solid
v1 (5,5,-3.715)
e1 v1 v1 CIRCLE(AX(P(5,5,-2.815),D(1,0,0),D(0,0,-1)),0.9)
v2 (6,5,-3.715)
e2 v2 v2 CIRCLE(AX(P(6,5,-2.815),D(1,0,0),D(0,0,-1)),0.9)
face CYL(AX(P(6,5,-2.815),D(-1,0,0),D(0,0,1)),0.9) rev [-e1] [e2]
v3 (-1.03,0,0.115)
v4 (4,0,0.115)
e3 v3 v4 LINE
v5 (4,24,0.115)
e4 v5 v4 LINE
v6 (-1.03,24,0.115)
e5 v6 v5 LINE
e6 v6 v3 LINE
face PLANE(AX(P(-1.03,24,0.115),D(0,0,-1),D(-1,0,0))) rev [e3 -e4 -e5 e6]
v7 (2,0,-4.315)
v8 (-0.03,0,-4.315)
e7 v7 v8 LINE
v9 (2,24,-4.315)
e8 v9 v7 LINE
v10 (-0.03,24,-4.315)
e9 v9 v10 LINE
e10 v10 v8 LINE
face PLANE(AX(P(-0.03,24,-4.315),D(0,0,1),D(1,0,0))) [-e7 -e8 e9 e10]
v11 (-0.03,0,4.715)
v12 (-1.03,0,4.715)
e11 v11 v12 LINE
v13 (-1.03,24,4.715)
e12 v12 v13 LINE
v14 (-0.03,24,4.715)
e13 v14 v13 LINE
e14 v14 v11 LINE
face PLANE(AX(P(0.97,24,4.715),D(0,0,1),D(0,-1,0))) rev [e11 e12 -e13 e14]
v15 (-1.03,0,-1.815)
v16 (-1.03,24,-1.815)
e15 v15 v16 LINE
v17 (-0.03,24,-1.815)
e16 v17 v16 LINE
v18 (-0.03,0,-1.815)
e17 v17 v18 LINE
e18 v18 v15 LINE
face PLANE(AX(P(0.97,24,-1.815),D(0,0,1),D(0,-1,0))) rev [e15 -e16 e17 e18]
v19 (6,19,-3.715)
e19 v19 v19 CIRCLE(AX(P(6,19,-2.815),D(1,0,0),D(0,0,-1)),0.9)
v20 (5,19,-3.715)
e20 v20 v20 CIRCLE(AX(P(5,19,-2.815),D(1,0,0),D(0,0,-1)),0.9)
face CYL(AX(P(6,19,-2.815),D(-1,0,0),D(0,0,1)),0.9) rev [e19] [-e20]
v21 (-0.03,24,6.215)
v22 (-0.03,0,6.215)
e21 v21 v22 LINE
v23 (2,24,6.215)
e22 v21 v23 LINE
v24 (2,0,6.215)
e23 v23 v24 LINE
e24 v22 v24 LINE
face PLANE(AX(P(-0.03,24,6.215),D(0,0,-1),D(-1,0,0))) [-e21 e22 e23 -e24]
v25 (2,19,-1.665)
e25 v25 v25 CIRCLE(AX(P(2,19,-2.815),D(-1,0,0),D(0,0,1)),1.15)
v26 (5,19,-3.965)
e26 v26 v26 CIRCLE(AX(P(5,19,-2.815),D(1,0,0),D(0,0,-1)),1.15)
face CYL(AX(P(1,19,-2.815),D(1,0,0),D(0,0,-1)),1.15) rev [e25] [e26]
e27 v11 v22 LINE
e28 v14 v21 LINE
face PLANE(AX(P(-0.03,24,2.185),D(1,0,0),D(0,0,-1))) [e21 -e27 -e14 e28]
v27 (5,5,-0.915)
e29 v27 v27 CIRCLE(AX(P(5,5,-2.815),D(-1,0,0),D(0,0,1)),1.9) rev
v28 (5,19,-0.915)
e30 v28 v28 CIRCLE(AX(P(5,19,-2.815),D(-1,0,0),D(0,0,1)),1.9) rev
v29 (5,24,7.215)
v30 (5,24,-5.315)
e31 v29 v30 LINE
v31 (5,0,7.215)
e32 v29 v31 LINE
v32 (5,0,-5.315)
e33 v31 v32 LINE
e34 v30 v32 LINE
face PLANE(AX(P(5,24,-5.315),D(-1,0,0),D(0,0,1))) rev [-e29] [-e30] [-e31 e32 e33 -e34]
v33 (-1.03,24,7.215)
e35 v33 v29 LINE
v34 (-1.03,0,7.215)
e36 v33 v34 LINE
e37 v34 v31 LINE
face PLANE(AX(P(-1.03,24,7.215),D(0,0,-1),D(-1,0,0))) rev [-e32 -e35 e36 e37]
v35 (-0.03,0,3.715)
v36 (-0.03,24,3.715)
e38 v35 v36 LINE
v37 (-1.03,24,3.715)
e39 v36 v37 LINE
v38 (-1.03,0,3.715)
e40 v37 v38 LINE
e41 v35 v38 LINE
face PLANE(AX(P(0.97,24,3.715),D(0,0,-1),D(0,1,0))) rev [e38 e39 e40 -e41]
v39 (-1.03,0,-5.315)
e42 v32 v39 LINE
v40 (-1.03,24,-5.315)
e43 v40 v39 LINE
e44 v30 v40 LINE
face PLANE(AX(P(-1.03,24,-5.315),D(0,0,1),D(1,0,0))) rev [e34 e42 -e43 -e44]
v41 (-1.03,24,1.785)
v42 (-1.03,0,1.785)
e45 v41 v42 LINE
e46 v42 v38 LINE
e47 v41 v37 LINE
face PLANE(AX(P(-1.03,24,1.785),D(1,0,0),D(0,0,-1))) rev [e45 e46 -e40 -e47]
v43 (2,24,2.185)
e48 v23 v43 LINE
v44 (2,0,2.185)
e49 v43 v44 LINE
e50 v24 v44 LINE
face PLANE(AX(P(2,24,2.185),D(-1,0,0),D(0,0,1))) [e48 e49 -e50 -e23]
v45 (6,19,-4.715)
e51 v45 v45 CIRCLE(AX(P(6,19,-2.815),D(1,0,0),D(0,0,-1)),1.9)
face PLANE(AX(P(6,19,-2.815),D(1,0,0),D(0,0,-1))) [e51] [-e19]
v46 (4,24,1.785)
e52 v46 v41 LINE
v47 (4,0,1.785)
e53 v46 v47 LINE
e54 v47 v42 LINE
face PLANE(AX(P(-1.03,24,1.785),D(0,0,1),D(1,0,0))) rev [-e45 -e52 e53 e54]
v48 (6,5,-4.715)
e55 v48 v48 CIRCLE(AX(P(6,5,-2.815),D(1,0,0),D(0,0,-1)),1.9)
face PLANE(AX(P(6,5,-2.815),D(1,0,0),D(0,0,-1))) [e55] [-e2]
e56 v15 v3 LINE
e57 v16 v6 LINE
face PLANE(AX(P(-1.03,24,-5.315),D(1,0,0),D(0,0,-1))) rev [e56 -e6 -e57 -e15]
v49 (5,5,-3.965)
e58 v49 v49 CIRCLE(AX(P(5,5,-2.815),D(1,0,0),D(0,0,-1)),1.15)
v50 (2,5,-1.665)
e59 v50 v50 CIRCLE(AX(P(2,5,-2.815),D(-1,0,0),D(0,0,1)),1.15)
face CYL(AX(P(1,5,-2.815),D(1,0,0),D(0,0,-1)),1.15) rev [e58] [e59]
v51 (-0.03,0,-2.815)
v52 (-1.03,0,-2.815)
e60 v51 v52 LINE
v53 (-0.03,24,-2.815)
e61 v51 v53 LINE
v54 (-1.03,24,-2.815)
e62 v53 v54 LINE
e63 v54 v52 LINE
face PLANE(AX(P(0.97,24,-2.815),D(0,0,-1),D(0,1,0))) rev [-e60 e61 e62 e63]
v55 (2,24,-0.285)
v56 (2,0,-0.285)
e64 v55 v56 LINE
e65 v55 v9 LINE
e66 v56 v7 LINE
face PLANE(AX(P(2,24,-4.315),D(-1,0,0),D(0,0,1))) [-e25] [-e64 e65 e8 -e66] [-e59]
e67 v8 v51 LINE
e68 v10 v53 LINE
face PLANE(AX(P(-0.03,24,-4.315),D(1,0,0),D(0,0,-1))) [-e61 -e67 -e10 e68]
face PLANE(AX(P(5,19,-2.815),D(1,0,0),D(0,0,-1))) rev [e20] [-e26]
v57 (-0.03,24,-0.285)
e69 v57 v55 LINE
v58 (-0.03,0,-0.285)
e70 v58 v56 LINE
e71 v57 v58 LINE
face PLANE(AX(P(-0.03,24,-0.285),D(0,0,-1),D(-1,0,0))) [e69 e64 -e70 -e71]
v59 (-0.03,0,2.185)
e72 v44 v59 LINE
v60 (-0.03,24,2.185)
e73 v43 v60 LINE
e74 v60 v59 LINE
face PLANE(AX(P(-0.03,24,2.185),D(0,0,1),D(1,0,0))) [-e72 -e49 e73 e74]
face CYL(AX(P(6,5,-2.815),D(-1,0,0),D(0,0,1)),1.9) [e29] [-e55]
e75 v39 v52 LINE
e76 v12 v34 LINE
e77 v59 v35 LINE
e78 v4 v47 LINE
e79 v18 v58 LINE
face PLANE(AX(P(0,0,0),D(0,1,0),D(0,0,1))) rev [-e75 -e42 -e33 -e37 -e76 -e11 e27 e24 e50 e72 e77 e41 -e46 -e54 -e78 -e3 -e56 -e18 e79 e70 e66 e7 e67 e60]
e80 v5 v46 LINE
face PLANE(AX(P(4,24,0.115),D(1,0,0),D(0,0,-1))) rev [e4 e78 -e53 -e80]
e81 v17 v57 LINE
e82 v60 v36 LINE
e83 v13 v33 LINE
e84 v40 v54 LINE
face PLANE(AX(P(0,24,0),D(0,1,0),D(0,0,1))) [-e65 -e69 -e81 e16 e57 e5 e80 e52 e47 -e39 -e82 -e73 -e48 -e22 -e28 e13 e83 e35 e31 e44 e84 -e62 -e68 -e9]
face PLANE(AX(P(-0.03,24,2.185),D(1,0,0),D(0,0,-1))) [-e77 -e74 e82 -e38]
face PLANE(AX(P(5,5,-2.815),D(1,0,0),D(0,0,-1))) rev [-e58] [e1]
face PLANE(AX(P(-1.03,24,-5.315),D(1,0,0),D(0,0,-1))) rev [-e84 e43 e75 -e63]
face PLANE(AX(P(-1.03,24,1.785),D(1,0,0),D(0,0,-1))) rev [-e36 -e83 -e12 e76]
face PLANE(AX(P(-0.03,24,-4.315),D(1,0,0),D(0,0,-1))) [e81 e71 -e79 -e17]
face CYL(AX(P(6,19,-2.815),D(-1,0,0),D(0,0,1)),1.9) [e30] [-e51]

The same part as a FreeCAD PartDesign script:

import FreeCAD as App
import Part
import Sketcher

V = App.Vector


def add_polygon(sketch, points):
    """Adds a closed chain of lines whose ends are joined by coincident constraints."""
    first, n = sketch.GeometryCount, len(points)
    for a, b in zip(points, points[1:] + points[:1]):
        sketch.addGeometry(Part.LineSegment(App.Vector(*a, 0), App.Vector(*b, 0)), False)
    for i in range(n):
        sketch.addConstraint(Sketcher.Constraint("Coincident", first + i, 2, first + (i + 1) % n, 1))

doc = App.newDocument("Part")
body = doc.addObject("PartDesign::Body", "Body")

# Sketch on XZ plane
sketch1 = body.newObject("Sketcher::SketchObject", "Sketch")
sketch1.AttachmentSupport = (doc.getObject("XZ_Plane"), [""])
sketch1.MapMode = "FlatFace"
add_polygon(sketch1, [(5, -5.3), (-1, -5.3), (-1, 0.1), (4, 0.1), (4, 1.8), (-1, 1.8), (-1, 7.2), (5, 7.2)])  # lines 0-7
add_polygon(sketch1, [(0, 6.2), (0, 2.2), (2, 2.2), (2, 6.2)])  # lines 8-11
add_polygon(sketch1, [(0, -0.3), (0, -4.3), (2, -4.3), (2, -0.3)])  # lines 12-15
sketch1.addConstraint(Sketcher.Constraint("Horizontal", 0))
sketch1.addConstraint(Sketcher.Constraint("Vertical", 1))
sketch1.addConstraint(Sketcher.Constraint("Horizontal", 2))
sketch1.addConstraint(Sketcher.Constraint("Vertical", 3))
sketch1.addConstraint(Sketcher.Constraint("Horizontal", 4))
sketch1.addConstraint(Sketcher.Constraint("Vertical", 5))
sketch1.addConstraint(Sketcher.Constraint("Horizontal", 6))
sketch1.addConstraint(Sketcher.Constraint("Vertical", 7))
sketch1.addConstraint(Sketcher.Constraint("Vertical", 8))
sketch1.addConstraint(Sketcher.Constraint("Horizontal", 9))
sketch1.addConstraint(Sketcher.Constraint("Vertical", 10))
sketch1.addConstraint(Sketcher.Constraint("Horizontal", 11))
sketch1.addConstraint(Sketcher.Constraint("Vertical", 12))
sketch1.addConstraint(Sketcher.Constraint("Horizontal", 13))
sketch1.addConstraint(Sketcher.Constraint("Vertical", 14))
sketch1.addConstraint(Sketcher.Constraint("Horizontal", 15))
sketch1.addConstraint(Sketcher.Constraint("Vertical", 1, 2, 4, 2))
sketch1.addConstraint(Sketcher.Constraint("Vertical", 11, 2, 12, 2))
sketch1.addConstraint(Sketcher.Constraint("Vertical", 10, 2, 13, 2))
sketch1.addConstraint(Sketcher.Constraint("Equal", 1, 5))
sketch1.addConstraint(Sketcher.Constraint("Equal", 10, 12))
sketch1.addConstraint(Sketcher.Constraint("DistanceX", -1, 1, 2, 2, 4.0))
sketch1.addConstraint(Sketcher.Constraint("DistanceX", -1, 1, 6, 2, 5.0))
sketch1.addConstraint(Sketcher.Constraint("DistanceX", -1, 1, 9, 2, 2.0))
sketch1.addConstraint(Sketcher.Constraint("DistanceX", 4, 2, 8, 2, 1.0))
sketch1.addConstraint(Sketcher.Constraint("DistanceY", 10, 2, 6, 2, 1.0))
sketch1.addConstraint(Sketcher.Constraint("DistanceY", 0, 2, 12, 2, 1.0))
sketch1.addConstraint(Sketcher.Constraint("DistanceX", 0, 2, 0, 1, 6.03))
sketch1.addConstraint(Sketcher.Constraint("DistanceY", 1, 1, 1, 2, 5.43))
sketch1.addConstraint(Sketcher.Constraint("DistanceY", 3, 1, 3, 2, 1.67))
sketch1.addConstraint(Sketcher.Constraint("DistanceY", 8, 2, 8, 1, 4.03))
sketch1.addConstraint(Sketcher.Constraint("DistanceY", 0, 2, -1, 1, 5.315))
pad1 = body.newObject("PartDesign::Pad", "Pad")
pad1.Profile = sketch1
pad1.Length = 24
pad1.Reversed = True

# Sketch on YZ plane
sketch2 = body.newObject("Sketcher::SketchObject", "Sketch001")
sketch2.AttachmentSupport = (doc.getObject("YZ_Plane"), [""])
sketch2.MapMode = "FlatFace"
sketch2.AttachmentOffset = App.Placement(V(0, 0, -1.03), App.Rotation())
add_polygon(sketch2, [(24, -2.8), (0, -2.8), (0, -1.8), (24, -1.8)])  # lines 0-3
add_polygon(sketch2, [(24, 3.7), (0, 3.7), (0, 4.7), (24, 4.7)])  # lines 4-7
sketch2.addConstraint(Sketcher.Constraint("Horizontal", 0))
sketch2.addConstraint(Sketcher.Constraint("Vertical", 1))
sketch2.addConstraint(Sketcher.Constraint("Horizontal", 2))
sketch2.addConstraint(Sketcher.Constraint("Vertical", 3))
sketch2.addConstraint(Sketcher.Constraint("Horizontal", 4))
sketch2.addConstraint(Sketcher.Constraint("Vertical", 5))
sketch2.addConstraint(Sketcher.Constraint("Horizontal", 6))
sketch2.addConstraint(Sketcher.Constraint("Vertical", 7))
sketch2.addConstraint(Sketcher.Constraint("PointOnObject", 0, 2, -2))
sketch2.addConstraint(Sketcher.Constraint("PointOnObject", 4, 2, -2))
sketch2.addConstraint(Sketcher.Constraint("Vertical", 3, 2, 6, 2))
sketch2.addConstraint(Sketcher.Constraint("Equal", 3, 5))
sketch2.addConstraint(Sketcher.Constraint("DistanceX", 0, 2, 0, 1, 24.0))
sketch2.addConstraint(Sketcher.Constraint("DistanceY", 1, 1, 1, 2, 1.0))
sketch2.addConstraint(Sketcher.Constraint("DistanceY", 1, 2, 4, 2, 5.53))
sketch2.addConstraint(Sketcher.Constraint("DistanceY", 0, 2, -1, 1, 2.815))
pocket1 = body.newObject("PartDesign::Pocket", "Pocket")
pocket1.Profile = sketch2
pocket1.Length = 2
pocket1.Reversed = True

# Sketch on YZ plane
sketch3 = body.newObject("Sketcher::SketchObject", "Sketch002")
sketch3.AttachmentSupport = (doc.getObject("YZ_Plane"), [""])
sketch3.MapMode = "FlatFace"
sketch3.AttachmentOffset = App.Placement(V(0, 0, 5), App.Rotation())
sketch3.addGeometry(Part.Circle(V(19, -2.8, 0), V(0, 0, 1), 1.9), False)
sketch3.addGeometry(Part.Circle(V(19, -2.8, 0), V(0, 0, 1), 0.9), False)
sketch3.addGeometry(Part.Circle(V(5, -2.8, 0), V(0, 0, 1), 1.9), False)
sketch3.addGeometry(Part.Circle(V(5, -2.8, 0), V(0, 0, 1), 0.9), False)
sketch3.addConstraint(Sketcher.Constraint("Coincident", 1, 3, 0, 3))
sketch3.addConstraint(Sketcher.Constraint("Coincident", 3, 3, 2, 3))
sketch3.addConstraint(Sketcher.Constraint("Equal", 0, 2))
sketch3.addConstraint(Sketcher.Constraint("Equal", 1, 3))
sketch3.addConstraint(Sketcher.Constraint("Horizontal", 1, 3, 2, 3))
sketch3.addConstraint(Sketcher.Constraint("Diameter", 0, 3.8))
sketch3.addConstraint(Sketcher.Constraint("Diameter", 1, 1.8))
sketch3.addConstraint(Sketcher.Constraint("DistanceX", -1, 1, 0, 3, 19.0))
sketch3.addConstraint(Sketcher.Constraint("DistanceX", -1, 1, 2, 3, 5.0))
sketch3.addConstraint(Sketcher.Constraint("DistanceY", 0, 3, -1, 1, 2.815))
pad2 = body.newObject("PartDesign::Pad", "Pad001")
pad2.Profile = sketch3
pad2.Length = 1

# Sketch on YZ plane
sketch4 = body.newObject("Sketcher::SketchObject", "Sketch003")
sketch4.AttachmentSupport = (doc.getObject("YZ_Plane"), [""])
sketch4.MapMode = "FlatFace"
sketch4.AttachmentOffset = App.Placement(V(0, 0, 5), App.Rotation())
sketch4.addGeometry(Part.Circle(V(19, -2.8, 0), V(0, 0, 1), 1.1), False)
sketch4.addGeometry(Part.Circle(V(5, -2.8, 0), V(0, 0, 1), 1.1), False)
sketch4.addConstraint(Sketcher.Constraint("Equal", 0, 1))
sketch4.addConstraint(Sketcher.Constraint("Horizontal", 0, 3, 1, 3))
sketch4.addConstraint(Sketcher.Constraint("Diameter", 0, 2.3))
sketch4.addConstraint(Sketcher.Constraint("DistanceX", -1, 1, 0, 3, 19.0))
sketch4.addConstraint(Sketcher.Constraint("DistanceX", -1, 1, 1, 3, 5.0))
sketch4.addConstraint(Sketcher.Constraint("DistanceY", 0, 3, -1, 1, 2.815))
pocket2 = body.newObject("PartDesign::Pocket", "Pocket001")
pocket2.Profile = sketch4
pocket2.Length = 4

doc.recompute()
